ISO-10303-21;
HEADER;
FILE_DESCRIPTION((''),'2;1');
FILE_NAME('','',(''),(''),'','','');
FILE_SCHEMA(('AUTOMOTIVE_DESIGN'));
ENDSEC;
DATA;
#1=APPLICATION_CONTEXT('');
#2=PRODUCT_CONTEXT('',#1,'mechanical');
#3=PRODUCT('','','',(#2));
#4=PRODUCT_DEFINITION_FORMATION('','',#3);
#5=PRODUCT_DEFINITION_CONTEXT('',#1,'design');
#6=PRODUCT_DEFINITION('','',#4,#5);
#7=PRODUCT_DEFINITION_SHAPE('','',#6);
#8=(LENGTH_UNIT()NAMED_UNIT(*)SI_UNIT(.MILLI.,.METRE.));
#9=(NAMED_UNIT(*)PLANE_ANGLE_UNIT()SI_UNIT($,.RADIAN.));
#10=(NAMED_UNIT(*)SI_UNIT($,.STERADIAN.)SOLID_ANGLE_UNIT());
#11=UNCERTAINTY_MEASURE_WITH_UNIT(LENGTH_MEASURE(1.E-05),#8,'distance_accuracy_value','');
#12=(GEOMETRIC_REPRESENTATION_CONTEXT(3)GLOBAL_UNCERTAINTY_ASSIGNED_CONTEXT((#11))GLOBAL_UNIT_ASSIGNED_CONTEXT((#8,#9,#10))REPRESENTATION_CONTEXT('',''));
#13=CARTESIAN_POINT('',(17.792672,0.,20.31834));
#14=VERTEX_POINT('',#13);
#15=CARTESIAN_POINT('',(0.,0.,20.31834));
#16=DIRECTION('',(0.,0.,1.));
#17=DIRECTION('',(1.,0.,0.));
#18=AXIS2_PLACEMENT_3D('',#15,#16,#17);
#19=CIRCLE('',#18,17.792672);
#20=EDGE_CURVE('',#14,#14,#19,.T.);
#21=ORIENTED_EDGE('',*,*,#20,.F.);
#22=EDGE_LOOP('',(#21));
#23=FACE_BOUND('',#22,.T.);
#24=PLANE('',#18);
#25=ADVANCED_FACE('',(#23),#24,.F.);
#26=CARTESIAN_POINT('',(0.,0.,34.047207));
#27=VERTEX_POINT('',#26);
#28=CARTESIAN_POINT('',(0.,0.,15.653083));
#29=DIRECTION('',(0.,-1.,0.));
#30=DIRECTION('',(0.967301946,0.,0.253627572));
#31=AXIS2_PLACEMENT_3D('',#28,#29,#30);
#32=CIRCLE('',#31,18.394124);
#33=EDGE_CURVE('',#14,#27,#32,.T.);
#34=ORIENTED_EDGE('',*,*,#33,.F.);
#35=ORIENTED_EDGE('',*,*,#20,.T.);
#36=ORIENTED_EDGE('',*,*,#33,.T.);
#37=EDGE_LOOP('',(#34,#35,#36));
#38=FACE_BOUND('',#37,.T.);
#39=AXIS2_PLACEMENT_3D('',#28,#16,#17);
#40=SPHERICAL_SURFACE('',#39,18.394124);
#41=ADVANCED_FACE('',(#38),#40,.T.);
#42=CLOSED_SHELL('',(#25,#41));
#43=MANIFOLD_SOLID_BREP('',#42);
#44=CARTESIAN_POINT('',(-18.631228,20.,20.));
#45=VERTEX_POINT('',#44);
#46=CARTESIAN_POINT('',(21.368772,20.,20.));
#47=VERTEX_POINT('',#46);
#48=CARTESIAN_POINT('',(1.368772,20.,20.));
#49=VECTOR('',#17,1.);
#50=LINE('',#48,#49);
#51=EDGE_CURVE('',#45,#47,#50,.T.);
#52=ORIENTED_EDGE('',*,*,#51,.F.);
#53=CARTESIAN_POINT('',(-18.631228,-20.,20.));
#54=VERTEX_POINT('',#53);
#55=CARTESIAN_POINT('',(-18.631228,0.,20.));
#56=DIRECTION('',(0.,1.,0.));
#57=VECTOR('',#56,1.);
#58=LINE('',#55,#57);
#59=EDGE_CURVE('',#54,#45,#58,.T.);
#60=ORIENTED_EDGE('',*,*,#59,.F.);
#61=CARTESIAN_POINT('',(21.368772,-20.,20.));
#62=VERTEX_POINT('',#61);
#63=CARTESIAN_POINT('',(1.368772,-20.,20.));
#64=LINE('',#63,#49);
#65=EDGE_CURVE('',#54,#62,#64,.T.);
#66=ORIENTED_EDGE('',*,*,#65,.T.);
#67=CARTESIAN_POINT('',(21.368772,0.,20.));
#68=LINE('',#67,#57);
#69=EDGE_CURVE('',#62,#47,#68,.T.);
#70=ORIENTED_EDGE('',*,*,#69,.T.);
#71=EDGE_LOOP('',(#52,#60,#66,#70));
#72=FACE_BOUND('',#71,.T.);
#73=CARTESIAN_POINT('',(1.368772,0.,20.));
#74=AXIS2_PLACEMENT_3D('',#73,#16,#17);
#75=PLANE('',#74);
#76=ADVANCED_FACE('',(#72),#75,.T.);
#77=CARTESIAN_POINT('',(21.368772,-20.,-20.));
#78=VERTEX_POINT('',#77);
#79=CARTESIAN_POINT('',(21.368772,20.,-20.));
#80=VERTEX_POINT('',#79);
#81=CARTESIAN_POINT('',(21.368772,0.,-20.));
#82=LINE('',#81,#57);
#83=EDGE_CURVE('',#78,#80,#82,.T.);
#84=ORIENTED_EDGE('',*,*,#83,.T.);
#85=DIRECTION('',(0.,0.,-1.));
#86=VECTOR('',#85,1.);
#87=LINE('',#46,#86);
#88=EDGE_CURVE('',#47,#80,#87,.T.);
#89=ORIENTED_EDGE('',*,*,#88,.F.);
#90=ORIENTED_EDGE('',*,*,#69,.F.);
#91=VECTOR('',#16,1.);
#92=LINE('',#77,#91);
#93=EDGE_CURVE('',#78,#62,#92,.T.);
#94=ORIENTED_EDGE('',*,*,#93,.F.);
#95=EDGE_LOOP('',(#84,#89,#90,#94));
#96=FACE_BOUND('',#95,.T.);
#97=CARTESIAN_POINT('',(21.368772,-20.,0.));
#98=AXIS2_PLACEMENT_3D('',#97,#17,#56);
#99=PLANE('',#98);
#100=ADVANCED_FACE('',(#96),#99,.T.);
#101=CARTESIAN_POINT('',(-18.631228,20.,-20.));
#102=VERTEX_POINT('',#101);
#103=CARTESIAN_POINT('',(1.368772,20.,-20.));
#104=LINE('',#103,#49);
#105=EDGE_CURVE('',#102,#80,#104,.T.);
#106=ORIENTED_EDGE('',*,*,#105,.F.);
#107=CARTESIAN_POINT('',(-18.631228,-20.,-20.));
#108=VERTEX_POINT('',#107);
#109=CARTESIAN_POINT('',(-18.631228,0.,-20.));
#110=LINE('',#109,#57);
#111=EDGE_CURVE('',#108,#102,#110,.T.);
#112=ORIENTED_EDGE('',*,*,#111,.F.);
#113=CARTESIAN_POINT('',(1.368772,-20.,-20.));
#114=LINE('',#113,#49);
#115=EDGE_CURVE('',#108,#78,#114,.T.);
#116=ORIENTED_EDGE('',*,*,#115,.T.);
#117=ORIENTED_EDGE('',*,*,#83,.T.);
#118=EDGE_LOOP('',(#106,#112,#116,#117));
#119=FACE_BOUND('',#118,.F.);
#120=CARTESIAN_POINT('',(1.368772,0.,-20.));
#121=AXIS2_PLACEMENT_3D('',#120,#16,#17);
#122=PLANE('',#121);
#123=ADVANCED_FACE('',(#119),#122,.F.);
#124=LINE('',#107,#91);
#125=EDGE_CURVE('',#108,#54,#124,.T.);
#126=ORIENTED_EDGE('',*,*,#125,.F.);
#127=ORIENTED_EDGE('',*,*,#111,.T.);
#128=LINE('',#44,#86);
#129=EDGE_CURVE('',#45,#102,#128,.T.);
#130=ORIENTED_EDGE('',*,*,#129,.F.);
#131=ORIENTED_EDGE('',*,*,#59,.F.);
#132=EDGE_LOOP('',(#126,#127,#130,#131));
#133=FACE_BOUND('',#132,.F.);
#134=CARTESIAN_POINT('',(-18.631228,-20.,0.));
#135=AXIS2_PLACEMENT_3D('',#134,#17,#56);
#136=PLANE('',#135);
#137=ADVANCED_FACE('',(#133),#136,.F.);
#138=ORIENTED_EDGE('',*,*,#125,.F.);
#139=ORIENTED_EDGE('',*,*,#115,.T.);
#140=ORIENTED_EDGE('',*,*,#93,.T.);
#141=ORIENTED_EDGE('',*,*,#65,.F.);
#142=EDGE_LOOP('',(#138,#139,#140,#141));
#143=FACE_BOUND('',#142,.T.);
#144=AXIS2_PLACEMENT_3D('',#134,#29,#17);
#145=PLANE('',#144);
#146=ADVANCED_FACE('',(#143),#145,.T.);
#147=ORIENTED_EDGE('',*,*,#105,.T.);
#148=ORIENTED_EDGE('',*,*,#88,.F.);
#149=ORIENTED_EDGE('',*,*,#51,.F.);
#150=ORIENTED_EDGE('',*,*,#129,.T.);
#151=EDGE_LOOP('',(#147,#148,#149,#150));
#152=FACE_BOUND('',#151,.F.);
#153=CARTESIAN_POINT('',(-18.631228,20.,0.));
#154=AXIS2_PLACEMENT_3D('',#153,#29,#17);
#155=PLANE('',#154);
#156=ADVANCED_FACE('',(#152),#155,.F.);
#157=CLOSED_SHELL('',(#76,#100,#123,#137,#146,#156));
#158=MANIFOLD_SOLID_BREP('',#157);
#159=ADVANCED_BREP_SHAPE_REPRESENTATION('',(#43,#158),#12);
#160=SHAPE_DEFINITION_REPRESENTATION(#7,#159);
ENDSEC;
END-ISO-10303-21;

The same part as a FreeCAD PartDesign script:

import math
import FreeCAD as App
import Part
import Sketcher
from FreeCAD import Vector
Q = App.Units.Quantity

doc = App.newDocument("Part")
body = doc.addObject("PartDesign::Body", "Body")

# Sketch on XY plane
sketch1 = body.newObject("Sketcher::SketchObject", "Sketch")
sketch1.AttachmentSupport = (doc.getObject("XY_Plane"), [""])
sketch1.MapMode = "FlatFace"
sketch1.addGeometry([
    Part.LineSegment(Vector(-19, 20, 0), Vector(-19, -20, 0)),
    Part.LineSegment(Vector(-19, -20, 0), Vector(21, -20, 0)),
    Part.LineSegment(Vector(21, -20, 0), Vector(21, 20, 0)),
    Part.LineSegment(Vector(21, 20, 0), Vector(-19, 20, 0)),
], False)
sketch1.addConstraint([
    Sketcher.Constraint("Coincident", 0, 2, 1, 1),
    Sketcher.Constraint("Coincident", 1, 2, 2, 1),
    Sketcher.Constraint("Coincident", 2, 2, 3, 1),
    Sketcher.Constraint("Coincident", 3, 2, 0, 1),
    Sketcher.Constraint("Vertical", 0),
    Sketcher.Constraint("Horizontal", 1),
    Sketcher.Constraint("Vertical", 2),
    Sketcher.Constraint("Horizontal", 3),
    Sketcher.Constraint("Equal", 3, 0),
    Sketcher.Constraint("DistanceX", 1, 1, 1, 2, Q("40 mm")),
    Sketcher.Constraint("DistanceY", 0, 2, -1, 1, Q("20 mm")),
    Sketcher.Constraint("DistanceX", 0, 2, -1, 1, Q("18.631228 mm")),
])
pad1 = body.newObject("PartDesign::Pad", "Pad")
pad1.Profile = sketch1
pad1.Length = 40
pad1.Midplane = True
body2 = doc.addObject("PartDesign::Body", "Body001")

# Sketch on XZ plane
sketch2 = body2.newObject("Sketcher::SketchObject", "Sketch001")
sketch2.AttachmentSupport = (doc.getObject("XZ_Plane001"), [""])
sketch2.MapMode = "FlatFace"
sketch2.addGeometry([
    Part.LineSegment(Vector(0, 20, 0), Vector(18, 20, 0)),
    Part.ArcOfCircle(Part.Circle(Vector(0, 16, 0), Vector(0, 0, 1), 18), math.radians(15), math.radians(90)),
    Part.LineSegment(Vector(0, 34, 0), Vector(0, 20, 0)),
], False)
sketch2.addConstraint([
    Sketcher.Constraint("Coincident", 0, 2, 1, 1),
    Sketcher.Constraint("Coincident", 1, 2, 2, 1),
    Sketcher.Constraint("Coincident", 2, 2, 0, 1),
    Sketcher.Constraint("Horizontal", 0),
    Sketcher.Constraint("Vertical", 2),
    Sketcher.Constraint("PointOnObject", 1, 3, -2),
    Sketcher.Constraint("PointOnObject", 1, 2, -2),
    Sketcher.Constraint("Radius", 1, Q("18.394124 mm")),
    Sketcher.Constraint("DistanceX", 0, 1, 0, 2, Q("17.792672 mm")),
    Sketcher.Constraint("DistanceY", -1, 1, 0, 2, Q("20.31834 mm")),
])
revolution = body2.newObject("PartDesign::Revolution", "Revolution")
revolution.Profile = sketch2
revolution.ReferenceAxis = (sketch2, ["V_Axis"])
revolution.Angle = 360

doc.recompute()
